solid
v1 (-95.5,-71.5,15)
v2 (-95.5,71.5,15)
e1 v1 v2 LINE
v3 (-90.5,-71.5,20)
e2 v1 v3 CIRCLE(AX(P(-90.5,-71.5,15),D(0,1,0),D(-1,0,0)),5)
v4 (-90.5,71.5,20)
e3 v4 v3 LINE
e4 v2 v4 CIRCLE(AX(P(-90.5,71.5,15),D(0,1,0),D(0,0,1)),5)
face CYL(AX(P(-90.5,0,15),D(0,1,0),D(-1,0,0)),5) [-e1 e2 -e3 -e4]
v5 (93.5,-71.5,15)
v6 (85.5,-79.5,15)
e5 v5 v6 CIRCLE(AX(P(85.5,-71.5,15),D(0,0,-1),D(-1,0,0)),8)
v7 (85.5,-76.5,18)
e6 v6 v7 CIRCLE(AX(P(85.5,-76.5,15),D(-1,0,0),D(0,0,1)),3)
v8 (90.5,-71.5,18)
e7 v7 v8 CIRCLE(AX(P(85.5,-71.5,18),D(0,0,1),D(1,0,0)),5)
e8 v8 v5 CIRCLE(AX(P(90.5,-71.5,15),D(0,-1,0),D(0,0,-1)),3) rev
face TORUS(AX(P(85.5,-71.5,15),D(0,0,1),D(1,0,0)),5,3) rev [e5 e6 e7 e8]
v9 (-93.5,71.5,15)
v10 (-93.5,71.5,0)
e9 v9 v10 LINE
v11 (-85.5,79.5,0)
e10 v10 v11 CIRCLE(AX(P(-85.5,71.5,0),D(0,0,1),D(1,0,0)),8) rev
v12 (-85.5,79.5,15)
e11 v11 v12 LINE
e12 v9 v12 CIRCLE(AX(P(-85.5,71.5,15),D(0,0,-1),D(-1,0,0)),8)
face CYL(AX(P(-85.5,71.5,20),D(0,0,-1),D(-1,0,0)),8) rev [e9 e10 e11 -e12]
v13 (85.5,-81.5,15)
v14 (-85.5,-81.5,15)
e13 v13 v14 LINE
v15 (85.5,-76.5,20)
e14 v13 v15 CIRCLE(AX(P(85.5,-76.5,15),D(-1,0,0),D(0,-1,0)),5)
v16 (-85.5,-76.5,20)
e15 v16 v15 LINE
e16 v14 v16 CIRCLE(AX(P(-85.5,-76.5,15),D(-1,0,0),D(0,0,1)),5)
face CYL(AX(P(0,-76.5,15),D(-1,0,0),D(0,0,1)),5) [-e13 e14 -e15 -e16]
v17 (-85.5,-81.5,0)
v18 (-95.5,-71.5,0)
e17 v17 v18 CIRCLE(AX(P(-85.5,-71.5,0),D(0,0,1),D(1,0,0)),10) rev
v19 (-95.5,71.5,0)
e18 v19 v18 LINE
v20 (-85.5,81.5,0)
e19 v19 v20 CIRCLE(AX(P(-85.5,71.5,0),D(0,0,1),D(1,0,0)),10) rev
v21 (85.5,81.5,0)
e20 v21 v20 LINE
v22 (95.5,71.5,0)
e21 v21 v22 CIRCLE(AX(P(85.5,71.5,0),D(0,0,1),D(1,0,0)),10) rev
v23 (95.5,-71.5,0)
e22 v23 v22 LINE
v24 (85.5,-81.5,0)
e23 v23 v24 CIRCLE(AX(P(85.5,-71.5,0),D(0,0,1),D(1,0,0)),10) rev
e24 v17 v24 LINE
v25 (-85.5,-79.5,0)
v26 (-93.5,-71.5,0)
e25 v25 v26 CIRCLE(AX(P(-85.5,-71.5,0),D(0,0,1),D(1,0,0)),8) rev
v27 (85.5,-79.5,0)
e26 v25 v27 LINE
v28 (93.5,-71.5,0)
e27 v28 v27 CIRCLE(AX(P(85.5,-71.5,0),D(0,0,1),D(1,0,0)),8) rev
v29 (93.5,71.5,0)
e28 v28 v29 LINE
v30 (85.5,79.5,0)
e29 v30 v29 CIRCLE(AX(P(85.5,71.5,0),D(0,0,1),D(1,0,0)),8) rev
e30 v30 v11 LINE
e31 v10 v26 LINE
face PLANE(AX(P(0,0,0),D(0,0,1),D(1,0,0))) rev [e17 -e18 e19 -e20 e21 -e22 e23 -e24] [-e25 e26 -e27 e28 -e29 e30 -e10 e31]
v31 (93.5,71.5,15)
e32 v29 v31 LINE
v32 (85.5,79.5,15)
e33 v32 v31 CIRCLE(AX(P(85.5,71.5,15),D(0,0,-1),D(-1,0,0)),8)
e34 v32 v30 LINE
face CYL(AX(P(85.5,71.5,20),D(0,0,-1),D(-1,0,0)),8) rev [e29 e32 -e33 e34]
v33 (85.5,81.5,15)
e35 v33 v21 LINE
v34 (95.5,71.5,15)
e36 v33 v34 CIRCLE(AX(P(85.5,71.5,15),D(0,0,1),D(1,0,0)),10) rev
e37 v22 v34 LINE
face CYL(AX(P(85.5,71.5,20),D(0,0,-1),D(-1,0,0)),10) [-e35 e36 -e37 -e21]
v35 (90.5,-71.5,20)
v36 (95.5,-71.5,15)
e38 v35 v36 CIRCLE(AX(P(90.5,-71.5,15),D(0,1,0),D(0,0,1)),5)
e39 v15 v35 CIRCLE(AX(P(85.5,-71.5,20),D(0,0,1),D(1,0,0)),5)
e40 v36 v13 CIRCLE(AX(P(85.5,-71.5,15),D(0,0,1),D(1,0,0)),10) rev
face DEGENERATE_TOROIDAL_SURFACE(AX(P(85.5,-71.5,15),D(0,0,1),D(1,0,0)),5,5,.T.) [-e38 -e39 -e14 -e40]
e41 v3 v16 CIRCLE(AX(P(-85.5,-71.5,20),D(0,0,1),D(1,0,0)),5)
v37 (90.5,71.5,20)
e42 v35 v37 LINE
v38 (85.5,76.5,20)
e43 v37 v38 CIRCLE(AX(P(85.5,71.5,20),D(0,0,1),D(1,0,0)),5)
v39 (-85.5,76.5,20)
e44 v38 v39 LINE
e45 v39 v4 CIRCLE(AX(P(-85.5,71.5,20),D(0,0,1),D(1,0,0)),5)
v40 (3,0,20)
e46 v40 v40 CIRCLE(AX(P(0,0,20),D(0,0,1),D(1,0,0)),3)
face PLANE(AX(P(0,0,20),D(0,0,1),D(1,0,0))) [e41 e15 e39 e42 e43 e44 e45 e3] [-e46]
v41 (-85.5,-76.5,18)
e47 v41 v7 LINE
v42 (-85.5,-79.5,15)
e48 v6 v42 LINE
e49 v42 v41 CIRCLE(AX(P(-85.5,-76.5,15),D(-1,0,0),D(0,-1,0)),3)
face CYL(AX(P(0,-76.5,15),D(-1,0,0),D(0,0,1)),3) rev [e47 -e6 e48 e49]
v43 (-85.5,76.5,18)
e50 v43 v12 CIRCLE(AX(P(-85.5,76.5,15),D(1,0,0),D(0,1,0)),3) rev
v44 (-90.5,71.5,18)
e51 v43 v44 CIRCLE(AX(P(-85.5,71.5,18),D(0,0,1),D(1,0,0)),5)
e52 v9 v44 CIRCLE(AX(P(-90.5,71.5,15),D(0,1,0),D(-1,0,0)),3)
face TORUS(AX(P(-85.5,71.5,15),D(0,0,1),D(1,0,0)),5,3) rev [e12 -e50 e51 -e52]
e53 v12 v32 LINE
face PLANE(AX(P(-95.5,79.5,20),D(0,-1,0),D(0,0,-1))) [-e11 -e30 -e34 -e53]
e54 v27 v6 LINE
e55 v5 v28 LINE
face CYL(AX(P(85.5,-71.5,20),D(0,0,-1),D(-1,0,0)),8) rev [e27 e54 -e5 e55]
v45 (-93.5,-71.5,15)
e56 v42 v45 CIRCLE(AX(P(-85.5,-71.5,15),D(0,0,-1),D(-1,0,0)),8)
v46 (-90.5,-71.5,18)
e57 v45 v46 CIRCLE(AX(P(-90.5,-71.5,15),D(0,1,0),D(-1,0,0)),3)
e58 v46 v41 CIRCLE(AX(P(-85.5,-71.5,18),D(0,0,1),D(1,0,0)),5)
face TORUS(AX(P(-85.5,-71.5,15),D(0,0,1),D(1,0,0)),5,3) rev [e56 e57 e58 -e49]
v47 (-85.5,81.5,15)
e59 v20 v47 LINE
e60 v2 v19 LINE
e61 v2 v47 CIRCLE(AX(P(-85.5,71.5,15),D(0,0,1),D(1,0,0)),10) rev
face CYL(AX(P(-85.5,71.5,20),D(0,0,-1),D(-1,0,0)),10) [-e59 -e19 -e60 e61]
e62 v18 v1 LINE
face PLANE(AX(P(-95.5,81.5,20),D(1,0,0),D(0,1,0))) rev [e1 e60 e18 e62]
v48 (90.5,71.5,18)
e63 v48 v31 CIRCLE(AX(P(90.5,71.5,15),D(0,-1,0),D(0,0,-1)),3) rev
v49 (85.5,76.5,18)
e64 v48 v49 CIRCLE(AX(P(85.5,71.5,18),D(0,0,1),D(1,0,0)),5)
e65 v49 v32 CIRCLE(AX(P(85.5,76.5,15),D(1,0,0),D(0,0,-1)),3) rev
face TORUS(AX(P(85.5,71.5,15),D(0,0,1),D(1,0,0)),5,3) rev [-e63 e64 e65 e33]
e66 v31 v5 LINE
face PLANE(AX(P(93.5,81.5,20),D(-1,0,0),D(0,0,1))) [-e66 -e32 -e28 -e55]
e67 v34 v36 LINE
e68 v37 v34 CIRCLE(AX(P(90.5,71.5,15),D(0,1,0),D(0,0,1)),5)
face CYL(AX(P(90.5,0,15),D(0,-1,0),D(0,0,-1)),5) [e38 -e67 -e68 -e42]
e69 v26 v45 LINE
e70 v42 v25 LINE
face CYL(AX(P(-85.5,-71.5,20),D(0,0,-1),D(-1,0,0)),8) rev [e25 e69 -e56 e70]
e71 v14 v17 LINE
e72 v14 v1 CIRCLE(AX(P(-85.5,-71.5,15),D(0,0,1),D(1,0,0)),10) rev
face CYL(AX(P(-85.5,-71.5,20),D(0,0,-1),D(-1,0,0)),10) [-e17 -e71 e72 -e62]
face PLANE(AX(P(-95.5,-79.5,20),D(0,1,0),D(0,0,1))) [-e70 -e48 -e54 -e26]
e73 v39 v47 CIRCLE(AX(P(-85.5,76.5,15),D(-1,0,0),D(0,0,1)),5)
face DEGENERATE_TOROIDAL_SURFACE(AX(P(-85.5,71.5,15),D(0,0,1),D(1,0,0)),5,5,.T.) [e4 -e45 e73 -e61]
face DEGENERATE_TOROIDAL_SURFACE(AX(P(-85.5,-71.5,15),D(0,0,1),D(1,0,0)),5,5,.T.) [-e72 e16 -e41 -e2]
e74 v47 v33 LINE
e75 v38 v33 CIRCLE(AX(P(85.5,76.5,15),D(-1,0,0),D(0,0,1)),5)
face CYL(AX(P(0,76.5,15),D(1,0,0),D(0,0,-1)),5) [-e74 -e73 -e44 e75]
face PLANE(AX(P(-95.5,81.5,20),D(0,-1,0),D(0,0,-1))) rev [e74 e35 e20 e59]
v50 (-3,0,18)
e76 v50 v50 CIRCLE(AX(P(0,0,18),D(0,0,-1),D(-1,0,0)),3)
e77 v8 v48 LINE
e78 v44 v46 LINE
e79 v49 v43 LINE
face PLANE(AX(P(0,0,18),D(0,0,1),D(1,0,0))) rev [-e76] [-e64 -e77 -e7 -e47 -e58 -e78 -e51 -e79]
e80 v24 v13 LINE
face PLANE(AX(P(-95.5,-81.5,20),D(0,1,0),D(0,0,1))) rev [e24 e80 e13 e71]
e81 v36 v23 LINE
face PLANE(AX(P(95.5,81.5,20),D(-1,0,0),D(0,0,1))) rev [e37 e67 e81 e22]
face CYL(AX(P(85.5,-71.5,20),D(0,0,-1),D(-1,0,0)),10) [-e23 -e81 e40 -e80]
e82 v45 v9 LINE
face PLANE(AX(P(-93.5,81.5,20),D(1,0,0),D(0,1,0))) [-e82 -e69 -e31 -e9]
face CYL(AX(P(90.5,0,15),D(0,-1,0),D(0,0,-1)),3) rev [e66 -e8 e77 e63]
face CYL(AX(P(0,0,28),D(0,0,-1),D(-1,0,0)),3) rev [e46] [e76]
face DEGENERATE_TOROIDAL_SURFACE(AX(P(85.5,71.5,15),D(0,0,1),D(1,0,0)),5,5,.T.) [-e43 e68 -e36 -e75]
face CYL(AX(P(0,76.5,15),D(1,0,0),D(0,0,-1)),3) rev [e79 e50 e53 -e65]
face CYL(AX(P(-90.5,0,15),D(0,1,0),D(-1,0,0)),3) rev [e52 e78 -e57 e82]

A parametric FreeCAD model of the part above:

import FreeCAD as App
import Part
import Sketcher
from FreeCAD import Vector
Q = App.Units.Quantity


def edges_at(feature, points):
    """Names of the edges that pass closest to the given points."""
    edges = feature.Shape.Edges
    near = lambda p: min(range(len(edges)), key=lambda i: edges[i].distToShape(Part.Vertex(*p))[0])
    return sorted({f"Edge{near(p) + 1}" for p in points})


def faces_at(feature, points):
    """Names of the faces that lie closest to the given points."""
    faces = feature.Shape.Faces
    near = lambda p: min(range(len(faces)), key=lambda i: faces[i].distToShape(Part.Vertex(*p))[0])
    return sorted({f"Face{near(p) + 1}" for p in points})

doc = App.newDocument("Part")
body = doc.addObject("PartDesign::Body", "Body")

sketch1 = body.newObject("Sketcher::SketchObject", "Sketch")
sketch1.AttachmentSupport = (doc.getObject("XY_Plane"), [""])
sketch1.MapMode = "FlatFace"
sketch1.addGeometry([
    Part.LineSegment(Vector(-96, 82, 0), Vector(-96, -82, 0)),
    Part.LineSegment(Vector(-96, -82, 0), Vector(96, -82, 0)),
    Part.LineSegment(Vector(96, -82, 0), Vector(96, 82, 0)),
    Part.LineSegment(Vector(96, 82, 0), Vector(-96, 82, 0)),
], False)
sketch1.addConstraint([
    Sketcher.Constraint("Coincident", 0, 2, 1, 1),
    Sketcher.Constraint("Coincident", 1, 2, 2, 1),
    Sketcher.Constraint("Coincident", 2, 2, 3, 1),
    Sketcher.Constraint("Coincident", 3, 2, 0, 1),
    Sketcher.Constraint("Vertical", 0),
    Sketcher.Constraint("Horizontal", 1),
    Sketcher.Constraint("Vertical", 2),
    Sketcher.Constraint("Horizontal", 3),
    Sketcher.Constraint("Symmetric", 0, 2, 2, 2, -1, 1),
    Sketcher.Constraint("DistanceX", 1, 1, 1, 2, Q("191 mm")),
    Sketcher.Constraint("DistanceY", 0, 2, 0, 1, Q("163 mm")),
])
pad1 = body.newObject("PartDesign::Pad", "Pad")
pad1.Profile = sketch1
pad1.Length = 20
doc.recompute()

fillet = body.newObject("PartDesign::Fillet", "Fillet")
fillet.Base = (pad1, edges_at(pad1, [
    (95.5, -81.5, 10),
    (-95.5, -81.5, 10),
    (-95.5, 81.5, 10),
    (95.5, 81.5, 10),
]))
fillet.Radius = 10
doc.recompute()

fillet2 = body.newObject("PartDesign::Fillet", "Fillet001")
fillet2.Base = (fillet, edges_at(fillet, [
    (0, -81.5, 20),
    (-95.5, 0, 20),
    (95.5, 0, 20),
    (0, 81.5, 20),
    (-92.571, 78.571, 20),
    (92.571, 78.571, 20),
    (92.571, -78.571, 20),
    (-92.571, -78.571, 20),
]))
fillet2.Radius = 5
doc.recompute()

thickness = body.newObject("PartDesign::Thickness", "Thickness")
thickness.Base = (fillet2, faces_at(fillet2, [(0, 0, 0)]))
thickness.Value = 2
thickness.Reversed = True
thickness.Join = "Intersection"

sketch2 = body.newObject("Sketcher::SketchObject", "Sketch001")
sketch2.AttachmentSupport = (doc.getObject("XY_Plane"), [""])
sketch2.MapMode = "FlatFace"
sketch2.AttachmentOffset = App.Placement(Vector(0, 0, 18), App.Rotation())
sketch2.addGeometry(Part.Circle(Vector(0, 0, 0), Vector(0, 0, 1), 3), False)
sketch2.addConstraint([
    Sketcher.Constraint("Coincident", 0, 3, -1, 1),
    Sketcher.Constraint("Diameter", 0, Q("6 mm")),
])
pocket1 = body.newObject("PartDesign::Pocket", "Pocket")
pocket1.Profile = sketch2
pocket1.Length = 10
pocket1.Reversed = True

doc.recompute()
